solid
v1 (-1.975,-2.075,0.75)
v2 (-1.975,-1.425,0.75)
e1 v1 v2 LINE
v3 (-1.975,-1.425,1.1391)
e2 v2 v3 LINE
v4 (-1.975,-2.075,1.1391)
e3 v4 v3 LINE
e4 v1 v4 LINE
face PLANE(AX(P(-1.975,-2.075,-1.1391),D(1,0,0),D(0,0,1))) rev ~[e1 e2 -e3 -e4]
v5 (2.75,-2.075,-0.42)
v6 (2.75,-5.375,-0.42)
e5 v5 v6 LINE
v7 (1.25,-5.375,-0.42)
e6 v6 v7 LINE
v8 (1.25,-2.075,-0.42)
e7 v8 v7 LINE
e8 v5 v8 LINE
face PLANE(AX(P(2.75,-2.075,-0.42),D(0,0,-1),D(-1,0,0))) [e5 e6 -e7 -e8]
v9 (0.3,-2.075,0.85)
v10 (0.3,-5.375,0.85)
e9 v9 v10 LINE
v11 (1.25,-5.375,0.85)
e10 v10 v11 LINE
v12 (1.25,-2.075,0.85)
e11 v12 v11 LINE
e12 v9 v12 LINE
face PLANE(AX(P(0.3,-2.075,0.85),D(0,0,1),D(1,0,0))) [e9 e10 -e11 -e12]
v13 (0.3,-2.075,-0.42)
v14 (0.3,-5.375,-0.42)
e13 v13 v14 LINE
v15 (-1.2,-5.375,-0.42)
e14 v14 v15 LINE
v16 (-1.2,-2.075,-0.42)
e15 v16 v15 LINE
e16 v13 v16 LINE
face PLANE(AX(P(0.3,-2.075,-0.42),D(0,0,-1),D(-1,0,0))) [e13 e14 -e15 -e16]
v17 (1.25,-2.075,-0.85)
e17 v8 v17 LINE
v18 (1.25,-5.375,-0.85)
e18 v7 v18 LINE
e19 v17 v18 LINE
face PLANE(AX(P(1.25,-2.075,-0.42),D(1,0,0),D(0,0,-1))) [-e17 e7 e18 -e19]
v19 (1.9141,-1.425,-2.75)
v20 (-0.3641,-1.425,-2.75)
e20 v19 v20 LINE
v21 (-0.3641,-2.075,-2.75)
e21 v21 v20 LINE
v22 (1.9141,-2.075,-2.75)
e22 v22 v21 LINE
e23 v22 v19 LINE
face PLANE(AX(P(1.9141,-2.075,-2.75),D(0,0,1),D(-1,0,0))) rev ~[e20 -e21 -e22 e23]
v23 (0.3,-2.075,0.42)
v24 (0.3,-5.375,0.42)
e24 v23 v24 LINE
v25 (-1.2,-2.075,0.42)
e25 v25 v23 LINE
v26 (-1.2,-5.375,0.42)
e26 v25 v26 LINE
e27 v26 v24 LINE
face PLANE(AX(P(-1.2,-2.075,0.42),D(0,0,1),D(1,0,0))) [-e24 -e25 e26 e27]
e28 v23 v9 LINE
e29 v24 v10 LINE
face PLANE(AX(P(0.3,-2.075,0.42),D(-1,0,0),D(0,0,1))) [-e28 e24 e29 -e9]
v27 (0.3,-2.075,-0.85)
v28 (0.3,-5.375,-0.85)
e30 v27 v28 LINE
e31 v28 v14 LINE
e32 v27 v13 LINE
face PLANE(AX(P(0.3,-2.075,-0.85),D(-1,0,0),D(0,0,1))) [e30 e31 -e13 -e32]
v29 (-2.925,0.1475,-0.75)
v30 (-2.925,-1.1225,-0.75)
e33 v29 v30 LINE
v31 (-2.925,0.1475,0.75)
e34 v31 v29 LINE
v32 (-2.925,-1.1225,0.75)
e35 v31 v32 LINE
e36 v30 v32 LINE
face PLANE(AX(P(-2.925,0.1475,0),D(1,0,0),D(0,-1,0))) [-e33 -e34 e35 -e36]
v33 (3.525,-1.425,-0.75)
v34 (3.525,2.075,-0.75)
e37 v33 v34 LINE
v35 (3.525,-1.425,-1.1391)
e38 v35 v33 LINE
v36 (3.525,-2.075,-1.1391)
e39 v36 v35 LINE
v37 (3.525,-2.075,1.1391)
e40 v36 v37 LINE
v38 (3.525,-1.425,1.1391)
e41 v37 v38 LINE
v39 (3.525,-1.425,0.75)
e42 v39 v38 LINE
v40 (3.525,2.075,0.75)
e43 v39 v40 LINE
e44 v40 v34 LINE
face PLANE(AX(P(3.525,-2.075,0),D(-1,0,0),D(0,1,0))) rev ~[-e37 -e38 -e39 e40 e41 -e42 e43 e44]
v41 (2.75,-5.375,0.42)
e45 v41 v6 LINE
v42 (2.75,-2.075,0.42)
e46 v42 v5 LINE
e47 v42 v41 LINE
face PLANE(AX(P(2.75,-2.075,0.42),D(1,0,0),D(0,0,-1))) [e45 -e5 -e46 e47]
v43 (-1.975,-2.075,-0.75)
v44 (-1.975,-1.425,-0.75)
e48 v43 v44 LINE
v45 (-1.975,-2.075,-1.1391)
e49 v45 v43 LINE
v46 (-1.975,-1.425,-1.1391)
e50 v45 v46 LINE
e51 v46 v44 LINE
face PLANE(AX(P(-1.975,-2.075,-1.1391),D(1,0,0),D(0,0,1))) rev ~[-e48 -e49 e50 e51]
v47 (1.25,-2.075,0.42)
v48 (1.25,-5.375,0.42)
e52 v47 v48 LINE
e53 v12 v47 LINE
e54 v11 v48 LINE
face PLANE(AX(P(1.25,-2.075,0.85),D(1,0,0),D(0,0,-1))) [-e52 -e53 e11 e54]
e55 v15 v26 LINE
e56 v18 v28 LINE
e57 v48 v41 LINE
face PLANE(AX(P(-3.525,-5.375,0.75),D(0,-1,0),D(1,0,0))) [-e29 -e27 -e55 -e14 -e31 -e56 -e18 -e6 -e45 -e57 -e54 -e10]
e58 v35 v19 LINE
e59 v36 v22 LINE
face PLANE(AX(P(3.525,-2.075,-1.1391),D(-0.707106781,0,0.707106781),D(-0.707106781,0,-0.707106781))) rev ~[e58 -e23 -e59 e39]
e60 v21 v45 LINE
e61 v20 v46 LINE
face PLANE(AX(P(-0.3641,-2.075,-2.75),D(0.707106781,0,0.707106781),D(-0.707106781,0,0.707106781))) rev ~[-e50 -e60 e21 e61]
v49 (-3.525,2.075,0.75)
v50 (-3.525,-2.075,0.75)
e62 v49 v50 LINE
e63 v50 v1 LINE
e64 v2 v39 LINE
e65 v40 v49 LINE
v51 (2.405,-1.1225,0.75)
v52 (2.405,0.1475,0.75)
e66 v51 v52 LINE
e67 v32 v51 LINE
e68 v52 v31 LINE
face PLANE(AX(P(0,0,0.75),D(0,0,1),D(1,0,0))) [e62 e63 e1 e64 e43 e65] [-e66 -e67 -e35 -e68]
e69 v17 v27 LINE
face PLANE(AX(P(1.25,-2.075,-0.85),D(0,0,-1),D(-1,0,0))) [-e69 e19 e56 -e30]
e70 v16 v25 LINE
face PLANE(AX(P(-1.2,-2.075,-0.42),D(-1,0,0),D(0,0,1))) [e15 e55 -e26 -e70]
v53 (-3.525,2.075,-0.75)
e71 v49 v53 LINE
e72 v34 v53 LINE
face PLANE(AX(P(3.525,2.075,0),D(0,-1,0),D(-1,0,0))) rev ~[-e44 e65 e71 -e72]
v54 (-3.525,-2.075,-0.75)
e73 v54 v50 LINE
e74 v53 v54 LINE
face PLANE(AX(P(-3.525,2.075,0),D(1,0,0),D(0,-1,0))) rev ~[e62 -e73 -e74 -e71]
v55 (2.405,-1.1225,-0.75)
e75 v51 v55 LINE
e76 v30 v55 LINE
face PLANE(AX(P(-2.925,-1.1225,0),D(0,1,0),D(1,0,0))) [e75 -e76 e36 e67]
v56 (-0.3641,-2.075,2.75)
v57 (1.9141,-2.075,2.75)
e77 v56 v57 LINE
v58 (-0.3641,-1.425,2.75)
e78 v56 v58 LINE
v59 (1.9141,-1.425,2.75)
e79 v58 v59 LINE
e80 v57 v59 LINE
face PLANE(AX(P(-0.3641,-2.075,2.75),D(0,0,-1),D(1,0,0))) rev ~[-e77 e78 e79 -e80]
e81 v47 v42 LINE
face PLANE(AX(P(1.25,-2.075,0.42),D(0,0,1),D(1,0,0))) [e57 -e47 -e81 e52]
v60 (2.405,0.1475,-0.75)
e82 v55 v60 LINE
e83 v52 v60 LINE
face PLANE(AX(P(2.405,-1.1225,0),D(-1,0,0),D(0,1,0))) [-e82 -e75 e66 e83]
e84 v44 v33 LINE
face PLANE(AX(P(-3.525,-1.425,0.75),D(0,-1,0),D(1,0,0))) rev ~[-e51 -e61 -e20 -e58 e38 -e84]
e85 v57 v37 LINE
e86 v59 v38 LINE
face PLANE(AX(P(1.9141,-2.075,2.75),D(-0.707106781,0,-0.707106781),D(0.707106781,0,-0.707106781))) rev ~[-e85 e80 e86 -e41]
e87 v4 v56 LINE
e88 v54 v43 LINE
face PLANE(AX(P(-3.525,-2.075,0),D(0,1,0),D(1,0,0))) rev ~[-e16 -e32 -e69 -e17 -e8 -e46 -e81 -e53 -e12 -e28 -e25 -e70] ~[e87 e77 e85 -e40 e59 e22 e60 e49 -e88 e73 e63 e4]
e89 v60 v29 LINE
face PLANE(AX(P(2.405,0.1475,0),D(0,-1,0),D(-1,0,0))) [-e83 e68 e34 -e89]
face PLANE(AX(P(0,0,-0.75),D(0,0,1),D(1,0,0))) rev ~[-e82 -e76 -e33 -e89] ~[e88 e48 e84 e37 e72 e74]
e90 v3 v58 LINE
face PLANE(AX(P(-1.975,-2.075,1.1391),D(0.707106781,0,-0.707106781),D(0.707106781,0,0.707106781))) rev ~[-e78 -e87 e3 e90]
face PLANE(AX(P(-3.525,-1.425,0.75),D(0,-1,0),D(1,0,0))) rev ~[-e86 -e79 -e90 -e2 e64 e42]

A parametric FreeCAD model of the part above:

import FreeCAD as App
import Part
import Sketcher

doc = App.newDocument("Part")
body = doc.addObject("PartDesign::Body", "Body")

# Sketch on XY plane
sketch1 = body.newObject("Sketcher::SketchObject", "Sketch")
sketch1.AttachmentSupport = (doc.getObject("XY_Plane"), [""])
sketch1.MapMode = "FlatFace"
sketch1.addGeometry([
    Part.LineSegment(App.Vector(-3.5, 2.1, 0), App.Vector(-3.5, -2.1, 0)),  # 0
    Part.LineSegment(App.Vector(-3.5, -2.1, 0), App.Vector(3.5, -2.1, 0)),  # 1
    Part.LineSegment(App.Vector(3.5, -2.1, 0), App.Vector(3.5, 2.1, 0)),  # 2
    Part.LineSegment(App.Vector(3.5, 2.1, 0), App.Vector(-3.5, 2.1, 0)),  # 3
    Part.LineSegment(App.Vector(2.4, -1.1, 0), App.Vector(-2.9, -1.1, 0)),  # 4
    Part.LineSegment(App.Vector(-2.9, -1.1, 0), App.Vector(-2.9, 0.1, 0)),  # 5
    Part.LineSegment(App.Vector(-2.9, 0.1, 0), App.Vector(2.4, 0.1, 0)),  # 6
    Part.LineSegment(App.Vector(2.4, 0.1, 0), App.Vector(2.4, -1.1, 0)),  # 7
], False)
sketch1.addConstraint([
    Sketcher.Constraint("Coincident", 0, 2, 1, 1),
    Sketcher.Constraint("Coincident", 1, 2, 2, 1),
    Sketcher.Constraint("Coincident", 2, 2, 3, 1),
    Sketcher.Constraint("Coincident", 3, 2, 0, 1),
    Sketcher.Constraint("Coincident", 4, 2, 5, 1),
    Sketcher.Constraint("Coincident", 5, 2, 6, 1),
    Sketcher.Constraint("Coincident", 6, 2, 7, 1),
    Sketcher.Constraint("Coincident", 7, 2, 4, 1),
    Sketcher.Constraint("Vertical", 0),
    Sketcher.Constraint("Horizontal", 1),
    Sketcher.Constraint("Vertical", 2),
    Sketcher.Constraint("Horizontal", 3),
    Sketcher.Constraint("Horizontal", 4),
    Sketcher.Constraint("Vertical", 5),
    Sketcher.Constraint("Horizontal", 6),
    Sketcher.Constraint("Vertical", 7),
    Sketcher.Constraint("Symmetric", 0, 2, 2, 2, -1, 1),
    Sketcher.Constraint("DistanceX", 1, 1, 1, 2, 7.05),
    Sketcher.Constraint("DistanceX", 4, 2, 4, 1, 5.33),
    Sketcher.Constraint("DistanceY", 0, 2, 0, 1, 4.15),
    Sketcher.Constraint("DistanceY", 5, 1, 5, 2, 1.27),
    Sketcher.Constraint("DistanceX", 0, 2, 4, 2, 0.6),
    Sketcher.Constraint("DistanceY", 0, 2, 4, 2, 0.9525),
])
pad1 = body.newObject("PartDesign::Pad", "Pad")
pad1.Profile = sketch1
pad1.Length = 1.5
pad1.Midplane = True

# Sketch on XZ plane
sketch2 = body.newObject("Sketcher::SketchObject", "Sketch001")
sketch2.AttachmentSupport = (doc.getObject("XZ_Plane"), [""])
sketch2.MapMode = "FlatFace"
sketch2.AttachmentOffset = App.Placement(App.Vector(0, 0, 2.075), App.Rotation())
sketch2.addGeometry([
    Part.LineSegment(App.Vector(3.5, 1.1, 0), App.Vector(1.9, 2.8, 0)),  # 0
    Part.LineSegment(App.Vector(1.9, 2.8, 0), App.Vector(-0.4, 2.8, 0)),  # 1
    Part.LineSegment(App.Vector(-0.4, 2.8, 0), App.Vector(-2, 1.1, 0)),  # 2
    Part.LineSegment(App.Vector(-2, 1.1, 0), App.Vector(-2, -1.1, 0)),  # 3
    Part.LineSegment(App.Vector(-2, -1.1, 0), App.Vector(-0.4, -2.8, 0)),  # 4
    Part.LineSegment(App.Vector(-0.4, -2.8, 0), App.Vector(1.9, -2.8, 0)),  # 5
    Part.LineSegment(App.Vector(1.9, -2.8, 0), App.Vector(3.5, -1.1, 0)),  # 6
    Part.LineSegment(App.Vector(3.5, -1.1, 0), App.Vector(3.5, 1.1, 0)),  # 7
], False)
sketch2.addConstraint([
    Sketcher.Constraint("Coincident", 0, 2, 1, 1),
    Sketcher.Constraint("Coincident", 1, 2, 2, 1),
    Sketcher.Constraint("Coincident", 2, 2, 3, 1),
    Sketcher.Constraint("Coincident", 3, 2, 4, 1),
    Sketcher.Constraint("Coincident", 4, 2, 5, 1),
    Sketcher.Constraint("Coincident", 5, 2, 6, 1),
    Sketcher.Constraint("Coincident", 6, 2, 7, 1),
    Sketcher.Constraint("Coincident", 7, 2, 0, 1),
    Sketcher.Constraint("Horizontal", 1),
    Sketcher.Constraint("Vertical", 3),
    Sketcher.Constraint("Horizontal", 5),
    Sketcher.Constraint("Vertical", 7),
    Sketcher.Constraint("Symmetric", 1, 2, 4, 2, -1),
    Sketcher.Constraint("Perpendicular", 0, 2),
    Sketcher.Constraint("Perpendicular", 2, 4),
    Sketcher.Constraint("Perpendicular", 4, 6),
    Sketcher.Constraint("Horizontal", 3, 2, 6, 2),
    Sketcher.Constraint("Horizontal", 2, 2, 7, 2),
    Sketcher.Constraint("Vertical", 0, 2, 5, 2),
    Sketcher.Constraint("Equal", 5, 3),
    Sketcher.Constraint("DistanceY", 4, 2, 1, 2, 5.5),
    Sketcher.Constraint("DistanceX", 1, 2, 1, 1, 2.2782),
    Sketcher.Constraint("DistanceX", -1, 1, 0, 2, 1.914),
])
pad2 = body.newObject("PartDesign::Pad", "Pad001")
pad2.Profile = sketch2
pad2.Length = 0.65
pad2.Reversed = True

# Sketch on XZ plane
sketch3 = body.newObject("Sketcher::SketchObject", "Sketch002")
sketch3.AttachmentSupport = (doc.getObject("XZ_Plane"), [""])
sketch3.MapMode = "FlatFace"
sketch3.AttachmentOffset = App.Placement(App.Vector(0, 0, 2.075), App.Rotation())
sketch3.addGeometry([
    Part.LineSegment(App.Vector(0.3, 0.85, 0), App.Vector(0.3, 0.42, 0)),  # 0
    Part.LineSegment(App.Vector(0.3, 0.42, 0), App.Vector(-1.2, 0.42, 0)),  # 1
    Part.LineSegment(App.Vector(-1.2, 0.42, 0), App.Vector(-1.2, -0.42, 0)),  # 2
    Part.LineSegment(App.Vector(-1.2, -0.42, 0), App.Vector(0.3, -0.42, 0)),  # 3
    Part.LineSegment(App.Vector(0.3, -0.42, 0), App.Vector(0.3, -0.85, 0)),  # 4
    Part.LineSegment(App.Vector(0.3, -0.85, 0), App.Vector(1.25, -0.85, 0)),  # 5
    Part.LineSegment(App.Vector(1.25, -0.85, 0), App.Vector(1.25, -0.42, 0)),  # 6
    Part.LineSegment(App.Vector(1.25, -0.42, 0), App.Vector(2.75, -0.42, 0)),  # 7
    Part.LineSegment(App.Vector(2.75, -0.42, 0), App.Vector(2.75, 0.42, 0)),  # 8
    Part.LineSegment(App.Vector(2.75, 0.42, 0), App.Vector(1.25, 0.42, 0)),  # 9
    Part.LineSegment(App.Vector(1.25, 0.42, 0), App.Vector(1.25, 0.85, 0)),  # 10
    Part.LineSegment(App.Vector(1.25, 0.85, 0), App.Vector(0.3, 0.85, 0)),  # 11
], False)
sketch3.addConstraint([
    Sketcher.Constraint("Coincident", 0, 2, 1, 1),
    Sketcher.Constraint("Coincident", 1, 2, 2, 1),
    Sketcher.Constraint("Coincident", 2, 2, 3, 1),
    Sketcher.Constraint("Coincident", 3, 2, 4, 1),
    Sketcher.Constraint("Coincident", 4, 2, 5, 1),
    Sketcher.Constraint("Coincident", 5, 2, 6, 1),
    Sketcher.Constraint("Coincident", 6, 2, 7, 1),
    Sketcher.Constraint("Coincident", 7, 2, 8, 1),
    Sketcher.Constraint("Coincident", 8, 2, 9, 1),
    Sketcher.Constraint("Coincident", 9, 2, 10, 1),
    Sketcher.Constraint("Coincident", 10, 2, 11, 1),
    Sketcher.Constraint("Coincident", 11, 2, 0, 1),
    Sketcher.Constraint("Vertical", 0),
    Sketcher.Constraint("Horizontal", 1),
    Sketcher.Constraint("Vertical", 2),
    Sketcher.Constraint("Horizontal", 3),
    Sketcher.Constraint("Vertical", 4),
    Sketcher.Constraint("Horizontal", 5),
    Sketcher.Constraint("Vertical", 6),
    Sketcher.Constraint("Horizontal", 7),
    Sketcher.Constraint("Vertical", 8),
    Sketcher.Constraint("Horizontal", 9),
    Sketcher.Constraint("Vertical", 10),
    Sketcher.Constraint("Horizontal", 11),
    Sketcher.Constraint("Symmetric", 0, 2, 3, 2, -1),
    Sketcher.Constraint("Symmetric", 6, 2, 9, 2, -1),
    Sketcher.Constraint("Horizontal", 3, 2, 6, 2),
    Sketcher.Constraint("Equal", 3, 7),
    Sketcher.Constraint("Equal", 0, 4),
    Sketcher.Constraint("DistanceX", 5, 1, 5, 2, 0.95),
    Sketcher.Constraint("DistanceY", 2, 2, 2, 1, 0.84),
    Sketcher.Constraint("DistanceX", 1, 2, 1, 1, 1.5),
    Sketcher.Constraint("DistanceY", 0, 2, 0, 1, 0.43),
    Sketcher.Constraint("DistanceX", -1, 1, 0, 2, 0.3),
])
pad3 = body.newObject("PartDesign::Pad", "Pad002")
pad3.Profile = sketch3
pad3.Length = 3.3

doc.recompute()
